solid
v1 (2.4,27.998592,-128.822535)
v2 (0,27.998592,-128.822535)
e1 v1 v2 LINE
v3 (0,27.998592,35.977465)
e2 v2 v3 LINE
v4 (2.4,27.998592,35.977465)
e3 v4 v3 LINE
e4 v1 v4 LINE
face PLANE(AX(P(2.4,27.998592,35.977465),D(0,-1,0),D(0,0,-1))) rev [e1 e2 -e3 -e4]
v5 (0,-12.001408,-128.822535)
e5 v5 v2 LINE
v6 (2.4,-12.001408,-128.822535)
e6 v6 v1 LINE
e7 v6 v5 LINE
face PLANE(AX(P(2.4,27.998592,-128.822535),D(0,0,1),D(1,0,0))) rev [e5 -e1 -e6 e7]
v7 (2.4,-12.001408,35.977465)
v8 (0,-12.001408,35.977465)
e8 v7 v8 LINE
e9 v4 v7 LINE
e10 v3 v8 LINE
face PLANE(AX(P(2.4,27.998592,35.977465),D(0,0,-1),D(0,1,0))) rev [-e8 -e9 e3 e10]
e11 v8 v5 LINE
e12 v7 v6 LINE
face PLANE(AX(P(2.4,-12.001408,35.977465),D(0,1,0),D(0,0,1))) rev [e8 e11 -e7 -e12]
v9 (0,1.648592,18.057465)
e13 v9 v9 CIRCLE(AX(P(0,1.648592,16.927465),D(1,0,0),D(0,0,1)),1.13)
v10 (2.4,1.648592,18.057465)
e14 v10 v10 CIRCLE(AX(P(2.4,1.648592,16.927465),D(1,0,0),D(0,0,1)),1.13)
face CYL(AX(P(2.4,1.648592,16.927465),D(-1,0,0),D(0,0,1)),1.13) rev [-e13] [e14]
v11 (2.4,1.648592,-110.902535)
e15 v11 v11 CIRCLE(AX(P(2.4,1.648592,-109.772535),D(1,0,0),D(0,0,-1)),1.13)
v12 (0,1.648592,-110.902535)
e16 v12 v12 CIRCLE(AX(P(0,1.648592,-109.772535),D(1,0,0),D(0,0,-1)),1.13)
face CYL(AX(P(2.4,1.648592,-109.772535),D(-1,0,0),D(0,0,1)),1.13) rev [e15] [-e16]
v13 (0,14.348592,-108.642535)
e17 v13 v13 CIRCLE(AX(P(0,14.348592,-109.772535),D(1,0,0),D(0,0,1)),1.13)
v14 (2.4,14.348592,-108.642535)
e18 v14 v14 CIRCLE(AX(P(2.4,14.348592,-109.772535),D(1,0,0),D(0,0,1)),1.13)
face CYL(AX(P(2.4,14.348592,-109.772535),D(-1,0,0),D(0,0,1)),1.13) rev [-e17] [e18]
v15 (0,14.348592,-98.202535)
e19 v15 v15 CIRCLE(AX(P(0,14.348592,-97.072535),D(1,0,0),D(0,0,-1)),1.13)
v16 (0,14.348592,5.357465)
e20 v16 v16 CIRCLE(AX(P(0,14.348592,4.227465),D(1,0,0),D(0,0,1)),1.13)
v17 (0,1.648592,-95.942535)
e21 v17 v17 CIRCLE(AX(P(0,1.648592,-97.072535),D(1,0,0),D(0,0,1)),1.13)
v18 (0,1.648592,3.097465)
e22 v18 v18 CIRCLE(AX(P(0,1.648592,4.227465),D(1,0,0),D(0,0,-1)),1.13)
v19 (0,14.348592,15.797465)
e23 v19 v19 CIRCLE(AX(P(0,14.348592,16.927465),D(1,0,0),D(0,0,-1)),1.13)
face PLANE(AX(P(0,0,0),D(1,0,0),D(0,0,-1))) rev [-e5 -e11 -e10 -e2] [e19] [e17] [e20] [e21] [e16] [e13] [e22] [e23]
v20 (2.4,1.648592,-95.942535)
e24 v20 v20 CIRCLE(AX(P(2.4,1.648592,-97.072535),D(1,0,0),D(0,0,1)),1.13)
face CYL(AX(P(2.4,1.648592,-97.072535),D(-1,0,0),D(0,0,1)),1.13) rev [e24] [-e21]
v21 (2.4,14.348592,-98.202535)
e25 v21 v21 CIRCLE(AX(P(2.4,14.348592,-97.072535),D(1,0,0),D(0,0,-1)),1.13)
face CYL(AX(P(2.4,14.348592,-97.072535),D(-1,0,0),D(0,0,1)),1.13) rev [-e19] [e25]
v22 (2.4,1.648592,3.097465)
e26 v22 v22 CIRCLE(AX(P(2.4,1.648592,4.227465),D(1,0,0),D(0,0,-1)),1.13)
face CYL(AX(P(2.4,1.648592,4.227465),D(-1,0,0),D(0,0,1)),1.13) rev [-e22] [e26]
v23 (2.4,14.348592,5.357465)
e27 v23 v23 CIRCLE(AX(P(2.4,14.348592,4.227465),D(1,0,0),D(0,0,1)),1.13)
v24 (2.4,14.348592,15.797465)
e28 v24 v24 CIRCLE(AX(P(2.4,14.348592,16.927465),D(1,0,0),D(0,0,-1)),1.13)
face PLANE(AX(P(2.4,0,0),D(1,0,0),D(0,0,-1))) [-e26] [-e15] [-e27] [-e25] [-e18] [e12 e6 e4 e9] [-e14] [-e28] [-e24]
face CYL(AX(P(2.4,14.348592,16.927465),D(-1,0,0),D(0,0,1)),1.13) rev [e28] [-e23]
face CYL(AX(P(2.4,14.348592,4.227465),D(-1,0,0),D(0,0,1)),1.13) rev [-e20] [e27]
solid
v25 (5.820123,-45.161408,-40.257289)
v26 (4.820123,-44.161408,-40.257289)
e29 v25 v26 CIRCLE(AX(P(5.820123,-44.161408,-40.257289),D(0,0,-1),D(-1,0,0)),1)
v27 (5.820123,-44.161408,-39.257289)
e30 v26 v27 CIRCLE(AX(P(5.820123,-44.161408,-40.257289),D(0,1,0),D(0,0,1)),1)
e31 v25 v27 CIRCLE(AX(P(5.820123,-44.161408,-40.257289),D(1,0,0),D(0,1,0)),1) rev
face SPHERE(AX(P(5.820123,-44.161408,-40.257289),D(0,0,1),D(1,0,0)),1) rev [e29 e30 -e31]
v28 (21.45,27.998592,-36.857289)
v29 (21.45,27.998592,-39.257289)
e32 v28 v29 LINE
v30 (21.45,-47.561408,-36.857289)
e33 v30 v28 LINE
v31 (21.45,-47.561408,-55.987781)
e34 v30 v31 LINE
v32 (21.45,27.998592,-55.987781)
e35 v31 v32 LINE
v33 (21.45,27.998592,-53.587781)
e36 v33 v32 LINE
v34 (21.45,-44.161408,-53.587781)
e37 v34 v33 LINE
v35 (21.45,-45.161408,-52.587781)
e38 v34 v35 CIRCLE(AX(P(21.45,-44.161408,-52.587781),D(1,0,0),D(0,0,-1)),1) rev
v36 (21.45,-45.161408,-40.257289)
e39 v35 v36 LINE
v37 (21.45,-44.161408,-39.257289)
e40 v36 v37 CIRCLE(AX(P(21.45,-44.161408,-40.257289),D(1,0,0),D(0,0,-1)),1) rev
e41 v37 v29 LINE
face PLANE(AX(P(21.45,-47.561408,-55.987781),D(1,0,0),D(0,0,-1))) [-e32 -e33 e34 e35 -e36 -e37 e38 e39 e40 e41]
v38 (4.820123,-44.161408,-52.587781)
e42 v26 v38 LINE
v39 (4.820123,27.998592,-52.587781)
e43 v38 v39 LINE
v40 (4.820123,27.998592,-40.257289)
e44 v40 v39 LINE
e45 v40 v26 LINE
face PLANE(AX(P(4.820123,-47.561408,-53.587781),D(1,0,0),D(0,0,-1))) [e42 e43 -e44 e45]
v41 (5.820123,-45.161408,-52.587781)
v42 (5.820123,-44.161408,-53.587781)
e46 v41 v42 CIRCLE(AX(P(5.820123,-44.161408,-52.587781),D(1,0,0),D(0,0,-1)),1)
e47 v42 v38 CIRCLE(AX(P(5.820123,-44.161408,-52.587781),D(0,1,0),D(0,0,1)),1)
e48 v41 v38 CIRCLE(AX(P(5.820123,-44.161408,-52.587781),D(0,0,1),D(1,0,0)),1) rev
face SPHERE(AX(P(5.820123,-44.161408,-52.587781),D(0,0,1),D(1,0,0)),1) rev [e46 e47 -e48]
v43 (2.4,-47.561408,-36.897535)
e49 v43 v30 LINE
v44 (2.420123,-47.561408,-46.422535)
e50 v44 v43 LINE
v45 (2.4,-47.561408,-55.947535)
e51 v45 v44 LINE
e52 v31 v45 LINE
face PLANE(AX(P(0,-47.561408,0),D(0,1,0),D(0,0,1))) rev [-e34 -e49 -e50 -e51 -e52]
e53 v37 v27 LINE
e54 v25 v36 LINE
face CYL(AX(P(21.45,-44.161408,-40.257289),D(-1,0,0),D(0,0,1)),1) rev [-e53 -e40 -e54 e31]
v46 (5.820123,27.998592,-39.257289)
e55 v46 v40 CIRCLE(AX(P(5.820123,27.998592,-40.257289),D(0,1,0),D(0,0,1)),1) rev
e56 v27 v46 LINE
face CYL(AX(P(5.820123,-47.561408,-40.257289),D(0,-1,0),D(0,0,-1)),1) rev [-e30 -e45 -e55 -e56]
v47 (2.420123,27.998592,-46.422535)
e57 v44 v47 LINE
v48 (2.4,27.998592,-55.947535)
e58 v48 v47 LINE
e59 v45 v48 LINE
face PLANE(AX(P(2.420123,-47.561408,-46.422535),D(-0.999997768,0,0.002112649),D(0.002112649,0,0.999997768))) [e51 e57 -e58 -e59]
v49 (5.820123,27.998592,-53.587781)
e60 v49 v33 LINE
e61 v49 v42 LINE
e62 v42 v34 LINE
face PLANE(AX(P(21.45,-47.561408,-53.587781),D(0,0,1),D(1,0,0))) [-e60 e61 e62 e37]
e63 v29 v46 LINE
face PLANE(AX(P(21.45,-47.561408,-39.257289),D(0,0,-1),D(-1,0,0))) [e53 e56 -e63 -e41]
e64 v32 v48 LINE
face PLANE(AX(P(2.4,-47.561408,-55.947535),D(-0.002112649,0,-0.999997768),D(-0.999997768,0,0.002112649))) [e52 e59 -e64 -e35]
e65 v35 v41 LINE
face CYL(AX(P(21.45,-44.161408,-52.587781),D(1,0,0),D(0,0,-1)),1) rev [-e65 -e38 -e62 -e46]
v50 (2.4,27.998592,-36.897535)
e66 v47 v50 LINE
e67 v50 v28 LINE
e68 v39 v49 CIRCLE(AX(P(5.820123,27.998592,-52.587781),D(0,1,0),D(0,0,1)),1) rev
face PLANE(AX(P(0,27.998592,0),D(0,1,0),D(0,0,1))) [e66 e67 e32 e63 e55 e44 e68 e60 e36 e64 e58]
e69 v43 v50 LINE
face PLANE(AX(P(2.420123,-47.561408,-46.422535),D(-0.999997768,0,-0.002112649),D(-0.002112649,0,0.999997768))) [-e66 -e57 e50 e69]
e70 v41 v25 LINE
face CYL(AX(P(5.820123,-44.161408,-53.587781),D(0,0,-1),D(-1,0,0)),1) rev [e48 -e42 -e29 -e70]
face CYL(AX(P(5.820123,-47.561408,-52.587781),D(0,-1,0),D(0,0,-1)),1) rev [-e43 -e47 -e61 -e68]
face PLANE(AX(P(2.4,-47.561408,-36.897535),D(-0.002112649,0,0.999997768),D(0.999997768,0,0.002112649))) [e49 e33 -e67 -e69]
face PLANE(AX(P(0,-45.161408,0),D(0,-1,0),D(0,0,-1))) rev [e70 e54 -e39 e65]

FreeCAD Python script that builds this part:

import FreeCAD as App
import Part
import Sketcher
Q = App.Units.Quantity


def edges_at(feature, points):
    """Names of the edges that pass closest to the given points."""
    edges = feature.Shape.Edges
    near = lambda p: min(range(len(edges)), key=lambda i: edges[i].distToShape(Part.Vertex(*p))[0])
    return sorted({f"Edge{near(p) + 1}" for p in points})


def add_polygon(sketch, points):
    """Adds a closed chain of lines whose ends are joined by coincident constraints."""
    first, n = sketch.GeometryCount, len(points)
    for a, b in zip(points, points[1:] + points[:1]):
        sketch.addGeometry(Part.LineSegment(App.Vector(*a, 0), App.Vector(*b, 0)), False)
    for i in range(n):
        sketch.addConstraint(Sketcher.Constraint("Coincident", first + i, 2, first + (i + 1) % n, 1))

doc = App.newDocument("Part")
body = doc.addObject("PartDesign::Body", "Body")

sketch1 = body.newObject("Sketcher::SketchObject", "Sketch")
sketch1.AttachmentSupport = (doc.getObject("YZ_Plane"), [""])
sketch1.MapMode = "FlatFace"
add_polygon(sketch1, [(28, 36), (-12, 36), (-12, -128.8), (28, -128.8)])
sketch1.addGeometry(Part.Circle(App.Vector(1.6, 16.9, 0), App.Vector(0, 0, 1), 1.1), False)
sketch1.addGeometry(Part.Circle(App.Vector(1.6, 4.2, 0), App.Vector(0, 0, 1), 1.1), False)
sketch1.addGeometry(Part.Circle(App.Vector(1.6, -97.1, 0), App.Vector(0, 0, 1), 1.1), False)
sketch1.addGeometry(Part.Circle(App.Vector(1.6, -109.8, 0), App.Vector(0, 0, 1), 1.1), False)
sketch1.addGeometry(Part.Circle(App.Vector(14.3, 16.9, 0), App.Vector(0, 0, 1), 1.1), False)
sketch1.addGeometry(Part.Circle(App.Vector(14.3, 4.2, 0), App.Vector(0, 0, 1), 1.1), False)
sketch1.addGeometry(Part.Circle(App.Vector(14.3, -97.1, 0), App.Vector(0, 0, 1), 1.1), False)
sketch1.addGeometry(Part.Circle(App.Vector(14.3, -109.8, 0), App.Vector(0, 0, 1), 1.1), False)
sketch1.addConstraint(Sketcher.Constraint("Horizontal", 0))
sketch1.addConstraint(Sketcher.Constraint("Vertical", 1))
sketch1.addConstraint(Sketcher.Constraint("Horizontal", 2))
sketch1.addConstraint(Sketcher.Constraint("Vertical", 3))
sketch1.addConstraint(Sketcher.Constraint("Equal", 4, 5))
sketch1.addConstraint(Sketcher.Constraint("Equal", 5, 6))
sketch1.addConstraint(Sketcher.Constraint("Equal", 6, 7))
sketch1.addConstraint(Sketcher.Constraint("Equal", 7, 8))
sketch1.addConstraint(Sketcher.Constraint("Equal", 8, 9))
sketch1.addConstraint(Sketcher.Constraint("Equal", 9, 10))
sketch1.addConstraint(Sketcher.Constraint("Equal", 10, 11))
sketch1.addConstraint(Sketcher.Constraint("Horizontal", 4, 3, 8, 3))
sketch1.addConstraint(Sketcher.Constraint("Horizontal", 5, 3, 9, 3))
sketch1.addConstraint(Sketcher.Constraint("Horizontal", 6, 3, 10, 3))
sketch1.addConstraint(Sketcher.Constraint("Horizontal", 7, 3, 11, 3))
sketch1.addConstraint(Sketcher.Constraint("Vertical", 4, 3, 5, 3))
sketch1.addConstraint(Sketcher.Constraint("Vertical", 5, 3, 6, 3))
sketch1.addConstraint(Sketcher.Constraint("Vertical", 6, 3, 7, 3))
sketch1.addConstraint(Sketcher.Constraint("Vertical", 8, 3, 9, 3))
sketch1.addConstraint(Sketcher.Constraint("Vertical", 9, 3, 10, 3))
sketch1.addConstraint(Sketcher.Constraint("Vertical", 10, 3, 11, 3))
sketch1.addConstraint(Sketcher.Constraint("Diameter", 4, Q("2.26 mm")))
sketch1.addConstraint(Sketcher.Constraint("DistanceX", 0, 2, 0, 1, Q("40 mm")))
sketch1.addConstraint(Sketcher.Constraint("DistanceY", 1, 2, 1, 1, Q("164.8 mm")))
sketch1.addConstraint(Sketcher.Constraint("DistanceY", 6, 3, 4, 3, Q("114 mm")))
sketch1.addConstraint(Sketcher.Constraint("DistanceY", 7, 3, 5, 3, Q("114 mm")))
sketch1.addConstraint(Sketcher.Constraint("DistanceY", 5, 3, 4, 3, Q("12.7 mm")))
sketch1.addConstraint(Sketcher.Constraint("DistanceX", 4, 3, 8, 3, Q("12.7 mm")))
sketch1.addConstraint(Sketcher.Constraint("DistanceX", 0, 2, 4, 3, Q("13.65 mm")))
sketch1.addConstraint(Sketcher.Constraint("DistanceY", 4, 3, 0, 2, Q("19.05 mm")))
sketch1.addConstraint(Sketcher.Constraint("DistanceX", -1, 1, 4, 3, Q("1.648592 mm")))
sketch1.addConstraint(Sketcher.Constraint("DistanceY", -1, 1, 4, 3, Q("16.927465 mm")))
pad1 = body.newObject("PartDesign::Pad", "Pad")
pad1.Profile = sketch1
pad1.Length = 2.4
body2 = doc.addObject("PartDesign::Body", "Body001")

sketch2 = body2.newObject("Sketcher::SketchObject", "Sketch001")
sketch2.AttachmentSupport = (doc.getObject("XZ_Plane001"), [""])
sketch2.MapMode = "FlatFace"
sketch2.AttachmentOffset = App.Placement(App.Vector(0, 0, -27.998592), App.Rotation())
add_polygon(sketch2, [(21.4, -56), (2.4, -55.9), (2.4, -46.4), (2.4, -36.9), (21.4, -36.9), (21.4, -39.3), (4.8, -39.3), (4.8, -53.6), (21.4, -53.6)])
sketch2.addConstraint(Sketcher.Constraint("Vertical", 4))
sketch2.addConstraint(Sketcher.Constraint("Horizontal", 5))
sketch2.addConstraint(Sketcher.Constraint("Vertical", 6))
sketch2.addConstraint(Sketcher.Constraint("Horizontal", 7))
sketch2.addConstraint(Sketcher.Constraint("Vertical", 8))
sketch2.addConstraint(Sketcher.Constraint("Perpendicular", 0, 1))
sketch2.addConstraint(Sketcher.Constraint("Perpendicular", 2, 3))
sketch2.addConstraint(Sketcher.Constraint("Vertical", 0, 2, 2, 2))
sketch2.addConstraint(Sketcher.Constraint("Vertical", 4, 2, 7, 2))
sketch2.addConstraint(Sketcher.Constraint("Equal", 4, 8))
sketch2.addConstraint(Sketcher.Constraint("Equal", 1, 2))
sketch2.addConstraint(Sketcher.Constraint("DistanceY", 4, 2, 4, 1, Q("2.4 mm")))
sketch2.addConstraint(Sketcher.Constraint("DistanceX", -1, 1, 0, 2, Q("2.4 mm")))
sketch2.addConstraint(Sketcher.Constraint("DistanceX", 1, 2, 5, 2, Q("2.4 mm")))
sketch2.addConstraint(Sketcher.Constraint("DistanceX", -1, 1, 3, 2, Q("21.45 mm")))
sketch2.addConstraint(Sketcher.Constraint("DistanceY", 0, 2, 2, 2, Q("19.05 mm")))
sketch2.addConstraint(Sketcher.Constraint("DistanceX", 5, 2, 5, 1, Q("16.629877 mm")))
sketch2.addConstraint(Sketcher.Constraint("DistanceY", 3, 2, -1, 1, Q("36.857289 mm")))
pad2 = body2.newObject("PartDesign::Pad", "Pad001")
pad2.Profile = sketch2
pad2.Length = 75.56

sketch3 = body2.newObject("Sketcher::SketchObject", "Sketch002")
sketch3.AttachmentSupport = (doc.getObject("XZ_Plane001"), [""])
sketch3.MapMode = "FlatFace"
sketch3.AttachmentOffset = App.Placement(App.Vector(0, 0, 47.561408), App.Rotation())
add_polygon(sketch3, [(5, -39), (5, -54), (21, -54), (21, -39)])
sketch3.addConstraint(Sketcher.Constraint("Vertical", 0))
sketch3.addConstraint(Sketcher.Constraint("Horizontal", 1))
sketch3.addConstraint(Sketcher.Constraint("Vertical", 2))
sketch3.addConstraint(Sketcher.Constraint("Horizontal", 3))
sketch3.addConstraint(Sketcher.Constraint("DistanceX", -1, 1, 1, 2, Q("21.45 mm")))
sketch3.addConstraint(Sketcher.Constraint("DistanceX", 1, 1, 1, 2, Q("16.629877 mm")))
sketch3.addConstraint(Sketcher.Constraint("DistanceY", 0, 2, 0, 1, Q("14.330492 mm")))
sketch3.addConstraint(Sketcher.Constraint("DistanceY", 0, 2, -1, 1, Q("53.587781 mm")))
pad3 = body2.newObject("PartDesign::Pad", "Pad002")
pad3.Profile = sketch3
pad3.Length = 2.4
pad3.Reversed = True
doc.recompute()

fillet = body2.newObject("PartDesign::Fillet", "Fillet")
fillet.Base = (pad3, edges_at(pad3, [
    (4.82, -8.581, -39.257),
    (4.82, -8.581, -53.588),
    (4.82, -45.161, -46.423),
    (13.135, -45.161, -39.257),
    (13.135, -45.161, -53.588),
]))
fillet.Radius = 1

doc.recompute()
